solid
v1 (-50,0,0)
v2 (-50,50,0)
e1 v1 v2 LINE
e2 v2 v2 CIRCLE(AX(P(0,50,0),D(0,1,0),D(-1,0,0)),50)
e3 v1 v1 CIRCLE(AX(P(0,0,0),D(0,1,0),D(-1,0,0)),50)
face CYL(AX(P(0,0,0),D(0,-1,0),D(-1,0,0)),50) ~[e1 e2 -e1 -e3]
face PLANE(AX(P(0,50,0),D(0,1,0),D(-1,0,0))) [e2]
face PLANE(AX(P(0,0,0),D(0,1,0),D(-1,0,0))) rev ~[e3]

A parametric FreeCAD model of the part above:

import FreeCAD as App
import Part
import Sketcher

V = App.Vector
Q = App.Units.Quantity

doc = App.newDocument("Part")
body = doc.addObject("PartDesign::Body", "Body")

sketch1 = doc.addObject("Sketcher::SketchObject", "Sketch")
body.addObject(sketch1)
sketch1.AttachmentSupport = (doc.XZ_Plane, [""])
sketch1.MapMode = "FlatFace"
sketch1.addGeometry(Part.Circle(V(0, 0, 0), V(0, 0, 1), 50), False)
sketch1.addConstraint(Sketcher.Constraint("Coincident", 0, 3, -1, 1))
sketch1.addConstraint(Sketcher.Constraint("Diameter", 0, Q("3.937 in")))
pad1 = doc.addObject("PartDesign::Pad", "Pad")
body.addObject(pad1)
pad1.Profile = sketch1
pad1.Length = Q("1.9685039 in")
pad1.Reversed = True

doc.recompute()
